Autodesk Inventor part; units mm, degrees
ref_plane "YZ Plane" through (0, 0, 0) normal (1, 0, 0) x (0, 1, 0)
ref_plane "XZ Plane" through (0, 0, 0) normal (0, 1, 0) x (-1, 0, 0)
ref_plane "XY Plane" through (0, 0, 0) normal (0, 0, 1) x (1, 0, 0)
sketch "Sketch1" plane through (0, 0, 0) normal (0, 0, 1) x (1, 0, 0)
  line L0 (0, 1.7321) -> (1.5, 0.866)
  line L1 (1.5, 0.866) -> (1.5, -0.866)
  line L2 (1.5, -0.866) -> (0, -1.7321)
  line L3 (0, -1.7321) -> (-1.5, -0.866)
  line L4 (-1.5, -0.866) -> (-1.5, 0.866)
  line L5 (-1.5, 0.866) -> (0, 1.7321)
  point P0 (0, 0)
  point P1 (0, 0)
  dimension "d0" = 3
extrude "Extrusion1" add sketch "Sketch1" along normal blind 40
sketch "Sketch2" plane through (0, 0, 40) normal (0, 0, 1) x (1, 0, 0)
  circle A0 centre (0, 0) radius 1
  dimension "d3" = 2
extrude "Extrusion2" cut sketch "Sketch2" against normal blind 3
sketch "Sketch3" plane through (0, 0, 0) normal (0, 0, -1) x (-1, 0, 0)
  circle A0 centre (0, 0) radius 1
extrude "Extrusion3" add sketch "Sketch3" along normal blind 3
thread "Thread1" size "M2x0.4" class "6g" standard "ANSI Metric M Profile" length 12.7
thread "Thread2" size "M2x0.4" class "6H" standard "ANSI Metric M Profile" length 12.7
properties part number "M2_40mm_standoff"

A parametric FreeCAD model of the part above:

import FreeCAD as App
import Part
import Sketcher


def add_polygon(sketch, points):
    """Adds a closed chain of lines whose ends are joined by coincident constraints."""
    first, n = sketch.GeometryCount, len(points)
    for a, b in zip(points, points[1:] + points[:1]):
        sketch.addGeometry(Part.LineSegment(App.Vector(*a, 0), App.Vector(*b, 0)), False)
    for i in range(n):
        sketch.addConstraint(Sketcher.Constraint("Coincident", first + i, 2, first + (i + 1) % n, 1))

doc = App.newDocument("Part")
params = doc.addObject("Spreadsheet::Sheet", "Params")
for row, (alias, value) in enumerate([
    ("pad1_length", "40 mm"),
    ("sketch2_diameter", "2 mm"),
    ("pocket1_length", "3 mm"),
    ("sketch3_diameter", "2 mm"),
    ("pad2_length", "3 mm"),
], start=1):
    params.set(f"A{row}", alias)
    params.set(f"B{row}", "=" + value)
    params.setAlias(f"B{row}", alias)

body = doc.addObject("PartDesign::Body", "Body")

# Sketch on XY plane
sketch1 = body.newObject("Sketcher::SketchObject", "Sketch")
sketch1.AttachmentSupport = (doc.getObject("XY_Plane"), [""])
sketch1.MapMode = "FlatFace"
add_polygon(sketch1, [(1.5, 0.9), (0, 1.7), (-1.5, 0.9), (-1.5, -0.9), (0, -1.7), (1.5, -0.9)])  # lines 0-5
sketch1.addConstraint([
    Sketcher.Constraint("Vertical", 2),
    Sketcher.Constraint("Vertical", 5),
    Sketcher.Constraint("Symmetric", 0, 2, 3, 2, -1, 1),
    Sketcher.Constraint("Symmetric", 1, 2, 4, 2, -1, 1),
    Sketcher.Constraint("PointOnObject", 0, 2, -2),
    Sketcher.Constraint("Parallel", 0, 3),
    Sketcher.Constraint("Horizontal", 2, 2, 4, 2),
    Sketcher.Constraint("DistanceX", 2, 2, 4, 2, 3.0),
    Sketcher.Constraint("DistanceY", 2, 2, 2, 1, 1.732),
    Sketcher.Constraint("Distance", 0, 1.732),
])
pad1 = body.newObject("PartDesign::Pad", "Pad")
pad1.Profile = sketch1
pad1.setExpression("Length", "Params.pad1_length")

# Sketch on XY plane
sketch2 = body.newObject("Sketcher::SketchObject", "Sketch001")
sketch2.AttachmentSupport = (doc.getObject("XY_Plane"), [""])
sketch2.MapMode = "FlatFace"
sketch2.AttachmentOffset = App.Placement(App.Vector(0, 0, 40), App.Rotation())
sketch2.addGeometry(Part.Circle(App.Vector(0, 0, 0), App.Vector(0, 0, 1), 1), False)
sketch2.addConstraint([
    Sketcher.Constraint("Coincident", 0, 3, -1, 1),
    Sketcher.Constraint("Diameter", 0, 2.0),
])
sketch2.setExpression("Constraints[1]", "Params.sketch2_diameter")
pocket1 = body.newObject("PartDesign::Pocket", "Pocket")
pocket1.Profile = sketch2
pocket1.setExpression("Length", "Params.pocket1_length")

# Sketch on XY plane
sketch3 = body.newObject("Sketcher::SketchObject", "Sketch002")
sketch3.AttachmentSupport = (doc.getObject("XY_Plane"), [""])
sketch3.MapMode = "FlatFace"
sketch3.addGeometry(Part.Circle(App.Vector(0, 0, 0), App.Vector(0, 0, 1), 1), False)
sketch3.addConstraint([
    Sketcher.Constraint("Coincident", 0, 3, -1, 1),
    Sketcher.Constraint("Diameter", 0, 2.0),
])
sketch3.setExpression("Constraints[1]", "Params.sketch3_diameter")
pad2 = body.newObject("PartDesign::Pad", "Pad001")
pad2.Profile = sketch3
pad2.setExpression("Length", "Params.pad2_length")
pad2.Reversed = True

doc.recompute()
